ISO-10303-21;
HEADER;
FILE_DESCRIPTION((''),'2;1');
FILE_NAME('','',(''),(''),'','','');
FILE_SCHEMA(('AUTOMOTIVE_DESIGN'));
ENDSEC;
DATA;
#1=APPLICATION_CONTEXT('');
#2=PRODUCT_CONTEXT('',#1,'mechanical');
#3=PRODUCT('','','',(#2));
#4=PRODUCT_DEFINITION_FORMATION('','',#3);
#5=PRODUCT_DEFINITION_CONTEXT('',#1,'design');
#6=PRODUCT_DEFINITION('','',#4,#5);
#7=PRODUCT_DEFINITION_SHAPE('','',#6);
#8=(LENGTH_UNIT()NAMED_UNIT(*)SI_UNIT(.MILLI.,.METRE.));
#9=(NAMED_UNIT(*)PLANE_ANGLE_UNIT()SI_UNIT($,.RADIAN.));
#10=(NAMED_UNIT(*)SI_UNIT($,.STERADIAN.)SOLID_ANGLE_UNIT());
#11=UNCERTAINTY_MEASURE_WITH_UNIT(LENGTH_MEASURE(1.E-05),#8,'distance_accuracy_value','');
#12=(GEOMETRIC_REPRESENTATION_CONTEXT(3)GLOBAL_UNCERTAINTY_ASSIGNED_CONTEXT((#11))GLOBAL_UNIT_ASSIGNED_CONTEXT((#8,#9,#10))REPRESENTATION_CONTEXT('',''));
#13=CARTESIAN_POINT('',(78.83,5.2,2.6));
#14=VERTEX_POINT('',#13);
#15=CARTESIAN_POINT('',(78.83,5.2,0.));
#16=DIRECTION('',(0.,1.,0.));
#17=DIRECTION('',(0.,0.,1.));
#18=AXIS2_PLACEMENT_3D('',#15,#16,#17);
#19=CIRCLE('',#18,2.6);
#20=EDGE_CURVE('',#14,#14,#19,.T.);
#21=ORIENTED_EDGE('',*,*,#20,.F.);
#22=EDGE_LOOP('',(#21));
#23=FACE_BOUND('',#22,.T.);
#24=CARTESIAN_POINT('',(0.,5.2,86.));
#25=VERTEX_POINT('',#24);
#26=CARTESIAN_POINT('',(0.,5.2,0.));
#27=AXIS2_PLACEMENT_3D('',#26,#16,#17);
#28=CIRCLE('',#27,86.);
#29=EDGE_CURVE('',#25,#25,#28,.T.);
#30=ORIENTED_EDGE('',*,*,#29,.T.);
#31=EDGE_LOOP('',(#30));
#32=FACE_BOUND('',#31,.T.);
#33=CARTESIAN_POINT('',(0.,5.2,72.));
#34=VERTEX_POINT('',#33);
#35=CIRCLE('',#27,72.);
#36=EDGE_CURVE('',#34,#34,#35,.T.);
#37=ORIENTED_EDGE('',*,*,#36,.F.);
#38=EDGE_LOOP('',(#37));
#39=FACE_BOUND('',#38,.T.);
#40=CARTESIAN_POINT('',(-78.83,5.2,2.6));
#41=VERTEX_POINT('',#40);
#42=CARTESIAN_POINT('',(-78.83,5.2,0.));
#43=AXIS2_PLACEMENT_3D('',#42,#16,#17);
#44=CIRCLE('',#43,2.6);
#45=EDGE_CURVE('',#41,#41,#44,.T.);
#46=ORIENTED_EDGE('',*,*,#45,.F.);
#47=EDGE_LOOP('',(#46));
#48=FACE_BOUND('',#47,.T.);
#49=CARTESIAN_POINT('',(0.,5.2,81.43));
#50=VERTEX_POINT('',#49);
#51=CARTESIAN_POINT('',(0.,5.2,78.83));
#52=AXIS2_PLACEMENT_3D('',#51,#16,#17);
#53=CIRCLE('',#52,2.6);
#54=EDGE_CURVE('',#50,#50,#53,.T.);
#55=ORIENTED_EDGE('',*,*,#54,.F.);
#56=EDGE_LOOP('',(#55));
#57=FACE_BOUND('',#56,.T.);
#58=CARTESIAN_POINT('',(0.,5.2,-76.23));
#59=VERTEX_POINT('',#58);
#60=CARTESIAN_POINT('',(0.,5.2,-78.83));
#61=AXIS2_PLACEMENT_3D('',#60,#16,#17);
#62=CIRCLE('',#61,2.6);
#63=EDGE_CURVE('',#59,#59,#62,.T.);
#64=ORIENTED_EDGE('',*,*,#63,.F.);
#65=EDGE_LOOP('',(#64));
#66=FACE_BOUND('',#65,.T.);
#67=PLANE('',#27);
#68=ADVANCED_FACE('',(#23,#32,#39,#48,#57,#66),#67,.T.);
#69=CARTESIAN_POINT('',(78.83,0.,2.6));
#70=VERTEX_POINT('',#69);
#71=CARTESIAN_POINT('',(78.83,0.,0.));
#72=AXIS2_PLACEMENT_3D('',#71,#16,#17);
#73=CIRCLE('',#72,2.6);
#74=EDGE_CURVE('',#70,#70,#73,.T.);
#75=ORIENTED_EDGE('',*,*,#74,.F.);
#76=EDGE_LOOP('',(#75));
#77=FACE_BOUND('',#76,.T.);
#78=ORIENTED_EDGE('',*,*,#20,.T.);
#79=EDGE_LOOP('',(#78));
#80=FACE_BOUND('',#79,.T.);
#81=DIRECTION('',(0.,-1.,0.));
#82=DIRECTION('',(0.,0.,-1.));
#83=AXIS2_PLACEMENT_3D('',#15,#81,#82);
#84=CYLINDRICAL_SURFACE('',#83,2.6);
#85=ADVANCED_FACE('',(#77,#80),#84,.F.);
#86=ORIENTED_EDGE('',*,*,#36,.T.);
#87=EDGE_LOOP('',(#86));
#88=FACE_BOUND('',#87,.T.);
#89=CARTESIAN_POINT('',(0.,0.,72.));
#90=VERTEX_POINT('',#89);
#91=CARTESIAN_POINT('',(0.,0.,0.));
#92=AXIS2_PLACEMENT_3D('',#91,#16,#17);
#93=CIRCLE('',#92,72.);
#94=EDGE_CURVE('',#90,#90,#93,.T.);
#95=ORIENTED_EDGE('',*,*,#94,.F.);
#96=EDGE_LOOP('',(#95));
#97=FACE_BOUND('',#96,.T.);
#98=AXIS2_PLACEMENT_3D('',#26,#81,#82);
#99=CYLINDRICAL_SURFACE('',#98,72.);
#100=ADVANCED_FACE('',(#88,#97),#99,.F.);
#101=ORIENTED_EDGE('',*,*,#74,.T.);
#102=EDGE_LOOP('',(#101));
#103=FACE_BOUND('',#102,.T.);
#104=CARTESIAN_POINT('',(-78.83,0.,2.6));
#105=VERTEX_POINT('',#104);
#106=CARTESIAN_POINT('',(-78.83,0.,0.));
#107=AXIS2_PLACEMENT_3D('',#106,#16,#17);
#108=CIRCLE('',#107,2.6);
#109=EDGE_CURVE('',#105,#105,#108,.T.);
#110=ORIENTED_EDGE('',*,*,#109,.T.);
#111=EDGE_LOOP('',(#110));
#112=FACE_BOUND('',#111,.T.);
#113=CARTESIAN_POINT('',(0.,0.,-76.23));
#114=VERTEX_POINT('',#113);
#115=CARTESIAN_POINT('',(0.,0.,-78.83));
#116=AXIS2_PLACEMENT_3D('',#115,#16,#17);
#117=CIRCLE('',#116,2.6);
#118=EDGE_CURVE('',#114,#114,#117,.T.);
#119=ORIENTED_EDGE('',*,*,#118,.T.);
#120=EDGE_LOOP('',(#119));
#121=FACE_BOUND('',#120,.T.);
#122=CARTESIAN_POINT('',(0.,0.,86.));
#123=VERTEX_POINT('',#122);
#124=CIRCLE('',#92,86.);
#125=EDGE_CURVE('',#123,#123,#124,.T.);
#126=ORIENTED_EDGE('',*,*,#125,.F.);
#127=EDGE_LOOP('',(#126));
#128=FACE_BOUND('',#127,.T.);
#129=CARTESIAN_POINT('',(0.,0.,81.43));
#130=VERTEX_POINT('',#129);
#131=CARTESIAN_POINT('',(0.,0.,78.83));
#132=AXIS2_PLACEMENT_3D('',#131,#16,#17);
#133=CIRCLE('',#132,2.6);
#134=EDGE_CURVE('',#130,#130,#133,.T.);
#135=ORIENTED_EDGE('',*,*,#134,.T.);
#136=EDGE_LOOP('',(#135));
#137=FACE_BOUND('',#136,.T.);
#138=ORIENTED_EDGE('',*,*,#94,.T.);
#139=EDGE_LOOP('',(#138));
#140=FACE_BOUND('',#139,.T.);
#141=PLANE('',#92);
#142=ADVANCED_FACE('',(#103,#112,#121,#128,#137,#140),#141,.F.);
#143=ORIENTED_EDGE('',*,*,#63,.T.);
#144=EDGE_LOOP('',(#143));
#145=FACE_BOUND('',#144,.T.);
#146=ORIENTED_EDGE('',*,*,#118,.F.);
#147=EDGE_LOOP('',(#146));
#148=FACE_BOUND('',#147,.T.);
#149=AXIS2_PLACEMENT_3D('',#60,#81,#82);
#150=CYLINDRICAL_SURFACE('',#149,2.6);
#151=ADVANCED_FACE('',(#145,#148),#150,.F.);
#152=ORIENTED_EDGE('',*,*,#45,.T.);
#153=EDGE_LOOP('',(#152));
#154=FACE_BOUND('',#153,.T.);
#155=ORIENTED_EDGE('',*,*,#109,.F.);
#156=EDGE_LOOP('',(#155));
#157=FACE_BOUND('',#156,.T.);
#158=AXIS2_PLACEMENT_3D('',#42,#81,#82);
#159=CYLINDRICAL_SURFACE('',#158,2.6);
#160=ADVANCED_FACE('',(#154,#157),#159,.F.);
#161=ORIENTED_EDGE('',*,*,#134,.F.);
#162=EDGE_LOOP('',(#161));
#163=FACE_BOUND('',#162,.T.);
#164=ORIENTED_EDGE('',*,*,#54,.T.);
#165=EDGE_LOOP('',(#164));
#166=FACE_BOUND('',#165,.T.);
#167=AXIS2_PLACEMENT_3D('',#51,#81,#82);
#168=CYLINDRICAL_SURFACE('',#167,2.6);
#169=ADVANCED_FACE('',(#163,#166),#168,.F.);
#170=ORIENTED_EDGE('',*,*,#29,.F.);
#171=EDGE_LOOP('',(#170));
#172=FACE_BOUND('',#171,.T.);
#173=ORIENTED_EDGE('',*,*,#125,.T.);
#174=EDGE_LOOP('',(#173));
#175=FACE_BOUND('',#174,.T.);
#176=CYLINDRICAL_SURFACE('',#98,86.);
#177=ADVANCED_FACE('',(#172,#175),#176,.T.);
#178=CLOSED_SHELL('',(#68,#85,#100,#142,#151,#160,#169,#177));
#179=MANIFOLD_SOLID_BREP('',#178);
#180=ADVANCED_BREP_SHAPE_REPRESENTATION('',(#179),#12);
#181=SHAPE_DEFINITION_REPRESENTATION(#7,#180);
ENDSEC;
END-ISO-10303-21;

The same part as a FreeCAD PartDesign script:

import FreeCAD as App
import Part
import Sketcher
from FreeCAD import Vector
Q = App.Units.Quantity

doc = App.newDocument("Part")
body = doc.addObject("PartDesign::Body", "Body")

# Sketch on XZ plane
sketch1 = body.newObject("Sketcher::SketchObject", "Sketch")
sketch1.AttachmentSupport = (doc.getObject("XZ_Plane"), [""])
sketch1.MapMode = "FlatFace"
sketch1.addGeometry([
    Part.Circle(Vector(0, 0, 0), Vector(0, 0, 1), 86),  # 0
    Part.Circle(Vector(0, -78.83, 0), Vector(0, 0, 1), 2.6),  # 1
    Part.Circle(Vector(-78.83, 0, 0), Vector(0, 0, 1), 2.6),  # 2
    Part.Circle(Vector(78.83, 0, 0), Vector(0, 0, 1), 2.6),  # 3
    Part.Circle(Vector(0, 0, 0), Vector(0, 0, 1), 72),  # 4
    Part.Circle(Vector(0, 78.83, 0), Vector(0, 0, 1), 2.6),  # 5
], False)
sketch1.addConstraint([
    Sketcher.Constraint("Coincident", 0, 3, -1, 1),
    Sketcher.Constraint("Coincident", 4, 3, -1, 1),
    Sketcher.Constraint("Equal", 1, 2),
    Sketcher.Constraint("Equal", 2, 3),
    Sketcher.Constraint("Equal", 3, 5),
    Sketcher.Constraint("Symmetric", 2, 3, 3, 3, -1, 1),
    Sketcher.Constraint("Symmetric", 1, 3, 5, 3, -1, 1),
    Sketcher.Constraint("PointOnObject", 1, 3, -2),
    Sketcher.Constraint("PointOnObject", 2, 3, -1),
    Sketcher.Constraint("Diameter", 0, Q("172 mm")),
    Sketcher.Constraint("Diameter", 4, Q("144 mm")),
    Sketcher.Constraint("Diameter", 1, Q("5.2 mm")),
    Sketcher.Constraint("DistanceY", 1, 3, -1, 1, Q("78.83 mm")),
    Sketcher.Constraint("DistanceX", 2, 3, -1, 1, Q("78.83 mm")),
])
pad1 = body.newObject("PartDesign::Pad", "Pad")
pad1.Profile = sketch1
pad1.Length = 5.2
pad1.Reversed = True

doc.recompute()
